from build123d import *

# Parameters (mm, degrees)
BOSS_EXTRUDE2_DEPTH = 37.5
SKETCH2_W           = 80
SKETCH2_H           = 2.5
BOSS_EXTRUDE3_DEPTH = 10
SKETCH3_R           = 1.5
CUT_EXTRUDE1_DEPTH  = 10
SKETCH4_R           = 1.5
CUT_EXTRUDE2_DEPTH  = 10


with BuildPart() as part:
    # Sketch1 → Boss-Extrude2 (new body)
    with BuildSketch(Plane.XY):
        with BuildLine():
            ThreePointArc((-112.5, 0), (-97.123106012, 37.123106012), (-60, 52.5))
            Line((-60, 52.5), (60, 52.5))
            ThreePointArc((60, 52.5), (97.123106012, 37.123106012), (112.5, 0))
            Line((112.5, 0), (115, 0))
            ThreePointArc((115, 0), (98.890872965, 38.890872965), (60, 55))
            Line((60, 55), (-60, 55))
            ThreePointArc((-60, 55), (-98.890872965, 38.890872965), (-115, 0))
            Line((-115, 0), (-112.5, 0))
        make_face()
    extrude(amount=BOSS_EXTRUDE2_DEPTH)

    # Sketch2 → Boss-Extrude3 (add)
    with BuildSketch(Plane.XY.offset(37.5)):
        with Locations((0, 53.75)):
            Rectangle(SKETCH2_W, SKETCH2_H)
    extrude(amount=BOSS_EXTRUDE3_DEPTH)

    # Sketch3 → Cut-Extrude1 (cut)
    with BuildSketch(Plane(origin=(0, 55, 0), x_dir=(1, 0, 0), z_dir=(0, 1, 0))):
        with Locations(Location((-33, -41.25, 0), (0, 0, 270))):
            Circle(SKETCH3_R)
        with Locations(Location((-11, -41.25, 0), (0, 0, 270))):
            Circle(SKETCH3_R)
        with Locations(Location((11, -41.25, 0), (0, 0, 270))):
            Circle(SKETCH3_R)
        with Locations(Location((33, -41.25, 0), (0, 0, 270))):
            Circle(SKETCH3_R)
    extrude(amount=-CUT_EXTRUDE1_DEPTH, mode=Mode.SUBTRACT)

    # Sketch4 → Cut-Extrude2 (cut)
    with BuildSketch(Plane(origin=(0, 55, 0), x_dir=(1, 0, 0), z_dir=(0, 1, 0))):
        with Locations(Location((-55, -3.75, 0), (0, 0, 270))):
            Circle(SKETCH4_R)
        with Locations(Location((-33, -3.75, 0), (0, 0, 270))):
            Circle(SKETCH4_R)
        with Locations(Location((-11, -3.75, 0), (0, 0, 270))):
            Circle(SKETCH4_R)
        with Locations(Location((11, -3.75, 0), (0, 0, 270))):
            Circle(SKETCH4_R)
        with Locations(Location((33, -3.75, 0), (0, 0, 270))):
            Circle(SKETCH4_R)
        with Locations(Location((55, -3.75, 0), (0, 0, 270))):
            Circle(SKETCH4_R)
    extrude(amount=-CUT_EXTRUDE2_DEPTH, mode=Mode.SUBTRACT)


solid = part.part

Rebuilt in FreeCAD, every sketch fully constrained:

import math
import FreeCAD as App
import Part
import Sketcher

V = App.Vector
Q = App.Units.Quantity


def add_polygon(sketch, points):
    """Adds a closed chain of lines whose ends are joined by coincident constraints."""
    first, n = sketch.GeometryCount, len(points)
    for a, b in zip(points, points[1:] + points[:1]):
        sketch.addGeometry(Part.LineSegment(App.Vector(*a, 0), App.Vector(*b, 0)), False)
    for i in range(n):
        sketch.addConstraint(Sketcher.Constraint("Coincident", first + i, 2, first + (i + 1) % n, 1))

doc = App.newDocument("Part")
body = doc.addObject("PartDesign::Body", "Body")

# Sketch on XY plane
sketch1 = doc.addObject("Sketcher::SketchObject", "Sketch")
body.addObject(sketch1)
sketch1.AttachmentSupport = (doc.XY_Plane, [""])
sketch1.MapMode = "FlatFace"
sketch1.addGeometry(Part.ArcOfCircle(Part.Circle(V(-60, 0, 0), V(0, 0, 1), 52.5), math.radians(90), math.radians(180)), False)
sketch1.addGeometry(Part.LineSegment(V(-60, 52.5, 0), V(60, 52.5, 0)), False)
sketch1.addGeometry(Part.ArcOfCircle(Part.Circle(V(60, 0, 0), V(0, 0, 1), 52.5), math.radians(0), math.radians(90)), False)
sketch1.addGeometry(Part.LineSegment(V(112.5, 0, 0), V(115, 0, 0)), False)
sketch1.addGeometry(Part.ArcOfCircle(Part.Circle(V(60, 0, 0), V(0, 0, 1), 55), math.radians(0), math.radians(90)), False)
sketch1.addGeometry(Part.LineSegment(V(60, 55, 0), V(-60, 55, 0)), False)
sketch1.addGeometry(Part.ArcOfCircle(Part.Circle(V(-60, 0, 0), V(0, 0, 1), 55), math.radians(90), math.radians(180)), False)
sketch1.addGeometry(Part.LineSegment(V(-115, 0, 0), V(-112.5, 0, 0)), False)
sketch1.addConstraint(Sketcher.Constraint("Tangent", 0, 1, 1, 1))
sketch1.addConstraint(Sketcher.Constraint("Tangent", 1, 2, 2, 2))
sketch1.addConstraint(Sketcher.Constraint("Coincident", 2, 1, 3, 1))
sketch1.addConstraint(Sketcher.Constraint("Coincident", 3, 2, 4, 1))
sketch1.addConstraint(Sketcher.Constraint("Tangent", 4, 2, 5, 1))
sketch1.addConstraint(Sketcher.Constraint("Tangent", 5, 2, 6, 1))
sketch1.addConstraint(Sketcher.Constraint("Coincident", 6, 2, 7, 1))
sketch1.addConstraint(Sketcher.Constraint("Coincident", 7, 2, 0, 2))
sketch1.addConstraint(Sketcher.Constraint("Horizontal", 1))
sketch1.addConstraint(Sketcher.Constraint("Horizontal", 3))
sketch1.addConstraint(Sketcher.Constraint("Horizontal", 5))
sketch1.addConstraint(Sketcher.Constraint("Horizontal", 7))
sketch1.addConstraint(Sketcher.Constraint("Coincident", 4, 3, 2, 3))
sketch1.addConstraint(Sketcher.Constraint("Coincident", 6, 3, 0, 3))
sketch1.addConstraint(Sketcher.Constraint("Equal", 0, 2))
sketch1.addConstraint(Sketcher.Constraint("Symmetric", 0, 3, 2, 3, -1, 1))
sketch1.addConstraint(Sketcher.Constraint("PointOnObject", 2, 1, -1))
sketch1.addConstraint(Sketcher.Constraint("PointOnObject", 6, 2, -1))
sketch1.addConstraint(Sketcher.Constraint("Radius", 4, Q("55 mm")))
sketch1.addConstraint(Sketcher.Constraint("Radius", 0, Q("52.5 mm")))
sketch1.addConstraint(Sketcher.Constraint("DistanceX", 1, 1, 1, 2, Q("120 mm")))
pad1 = doc.addObject("PartDesign::Pad", "Pad")
body.addObject(pad1)
pad1.Profile = sketch1
pad1.Length = 37.5

# Sketch on XY plane
sketch2 = doc.addObject("Sketcher::SketchObject", "Sketch001")
body.addObject(sketch2)
sketch2.AttachmentSupport = (doc.XY_Plane, [""])
sketch2.MapMode = "FlatFace"
sketch2.AttachmentOffset = App.Placement(V(0, 0, 37.5), App.Rotation())
add_polygon(sketch2, [(-40, 55), (-40, 52.5), (40, 52.5), (40, 55)])  # lines 0-3
sketch2.addConstraint(Sketcher.Constraint("Vertical", 0))
sketch2.addConstraint(Sketcher.Constraint("Horizontal", 1))
sketch2.addConstraint(Sketcher.Constraint("Vertical", 2))
sketch2.addConstraint(Sketcher.Constraint("Horizontal", 3))
sketch2.addConstraint(Sketcher.Constraint("DistanceX", 1, 1, 1, 2, Q("80 mm")))
sketch2.addConstraint(Sketcher.Constraint("DistanceY", 0, 2, 0, 1, Q("2.5 mm")))
sketch2.addConstraint(Sketcher.Constraint("DistanceX", 0, 2, -1, 1, Q("40 mm")))
sketch2.addConstraint(Sketcher.Constraint("DistanceY", -1, 1, 2, 2, Q("55 mm")))
pad2 = doc.addObject("PartDesign::Pad", "Pad001")
body.addObject(pad2)
pad2.Profile = sketch2
pad2.Length = 10

# Sketch on XZ plane
sketch3 = doc.addObject("Sketcher::SketchObject", "Sketch002")
body.addObject(sketch3)
sketch3.AttachmentSupport = (doc.XZ_Plane, [""])
sketch3.MapMode = "FlatFace"
sketch3.AttachmentOffset = App.Placement(V(0, 0, -55), App.Rotation())
sketch3.addGeometry(Part.Circle(V(-33, 41.2, 0), V(0, 0, 1), 1.5), False)
sketch3.addGeometry(Part.Circle(V(-11, 41.2, 0), V(0, 0, 1), 1.5), False)
sketch3.addGeometry(Part.Circle(V(11, 41.2, 0), V(0, 0, 1), 1.5), False)
sketch3.addGeometry(Part.Circle(V(33, 41.2, 0), V(0, 0, 1), 1.5), False)
sketch3.addConstraint(Sketcher.Constraint("Equal", 0, 1))
sketch3.addConstraint(Sketcher.Constraint("Equal", 1, 2))
sketch3.addConstraint(Sketcher.Constraint("Equal", 2, 3))
sketch3.addConstraint(Sketcher.Constraint("Symmetric", 1, 3, 2, 3, -2))
sketch3.addConstraint(Sketcher.Constraint("Symmetric", 0, 3, 3, 3, -2))
sketch3.addConstraint(Sketcher.Constraint("Horizontal", 0, 3, 1, 3))
sketch3.addConstraint(Sketcher.Constraint("Diameter", 0, Q("3 mm")))
sketch3.addConstraint(Sketcher.Constraint("DistanceX", 0, 3, -1, 1, Q("33 mm")))
sketch3.addConstraint(Sketcher.Constraint("DistanceX", 1, 3, -1, 1, Q("11 mm")))
sketch3.addConstraint(Sketcher.Constraint("DistanceY", -1, 1, 0, 3, Q("41.25 mm")))
pocket1 = doc.addObject("PartDesign::Pocket", "Pocket")
body.addObject(pocket1)
pocket1.Profile = sketch3
pocket1.Length = 10
pocket1.Reversed = True

# Sketch on XZ plane
sketch4 = doc.addObject("Sketcher::SketchObject", "Sketch003")
body.addObject(sketch4)
sketch4.AttachmentSupport = (doc.XZ_Plane, [""])
sketch4.MapMode = "FlatFace"
sketch4.AttachmentOffset = App.Placement(V(0, 0, -55), App.Rotation())
sketch4.addGeometry(Part.Circle(V(-55, 3.8, 0), V(0, 0, 1), 1.5), False)
sketch4.addGeometry(Part.Circle(V(-33, 3.8, 0), V(0, 0, 1), 1.5), False)
sketch4.addGeometry(Part.Circle(V(-11, 3.8, 0), V(0, 0, 1), 1.5), False)
sketch4.addGeometry(Part.Circle(V(11, 3.8, 0), V(0, 0, 1), 1.5), False)
sketch4.addGeometry(Part.Circle(V(33, 3.8, 0), V(0, 0, 1), 1.5), False)
sketch4.addGeometry(Part.Circle(V(55, 3.8, 0), V(0, 0, 1), 1.5), False)
sketch4.addConstraint(Sketcher.Constraint("Equal", 0, 1))
sketch4.addConstraint(Sketcher.Constraint("Equal", 1, 2))
sketch4.addConstraint(Sketcher.Constraint("Equal", 2, 3))
sketch4.addConstraint(Sketcher.Constraint("Equal", 3, 4))
sketch4.addConstraint(Sketcher.Constraint("Equal", 4, 5))
sketch4.addConstraint(Sketcher.Constraint("Symmetric", 2, 3, 3, 3, -2))
sketch4.addConstraint(Sketcher.Constraint("Symmetric", 1, 3, 4, 3, -2))
sketch4.addConstraint(Sketcher.Constraint("Symmetric", 0, 3, 5, 3, -2))
sketch4.addConstraint(Sketcher.Constraint("Horizontal", 0, 3, 1, 3))
sketch4.addConstraint(Sketcher.Constraint("Horizontal", 1, 3, 2, 3))
sketch4.addConstraint(Sketcher.Constraint("Diameter", 0, Q("3 mm")))
sketch4.addConstraint(Sketcher.Constraint("DistanceX", 0, 3, -1, 1, Q("55 mm")))
sketch4.addConstraint(Sketcher.Constraint("DistanceX", 1, 3, -1, 1, Q("33 mm")))
sketch4.addConstraint(Sketcher.Constraint("DistanceX", 2, 3, -1, 1, Q("11 mm")))
sketch4.addConstraint(Sketcher.Constraint("DistanceY", -1, 1, 0, 3, Q("3.75 mm")))
pocket2 = doc.addObject("PartDesign::Pocket", "Pocket001")
body.addObject(pocket2)
pocket2.Profile = sketch4
pocket2.Length = 10
pocket2.Reversed = True

doc.recompute()
